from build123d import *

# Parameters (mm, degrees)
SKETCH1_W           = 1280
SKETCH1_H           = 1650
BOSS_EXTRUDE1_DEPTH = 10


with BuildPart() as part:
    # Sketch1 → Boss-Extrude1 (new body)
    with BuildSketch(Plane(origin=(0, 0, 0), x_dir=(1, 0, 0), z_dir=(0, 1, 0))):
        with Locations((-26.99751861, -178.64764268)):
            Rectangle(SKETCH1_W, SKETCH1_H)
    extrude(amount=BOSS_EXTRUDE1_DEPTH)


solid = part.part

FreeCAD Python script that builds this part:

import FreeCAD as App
import Part
import Sketcher
Q = App.Units.Quantity


def add_polygon(sketch, points):
    """Adds a closed chain of lines whose ends are joined by coincident constraints."""
    first, n = sketch.GeometryCount, len(points)
    for a, b in zip(points, points[1:] + points[:1]):
        sketch.addGeometry(Part.LineSegment(App.Vector(*a, 0), App.Vector(*b, 0)), False)
    for i in range(n):
        sketch.addConstraint(Sketcher.Constraint("Coincident", first + i, 2, first + (i + 1) % n, 1))

doc = App.newDocument("Part")
body = doc.addObject("PartDesign::Body", "Body")

# Sketch on XZ plane
sketch1 = body.newObject("Sketcher::SketchObject", "Sketch")
sketch1.AttachmentSupport = (doc.getObject("XZ_Plane"), [""])
sketch1.MapMode = "FlatFace"
add_polygon(sketch1, [(-667, -646), (-667, 1004), (613, 1004), (613, -646)])  # lines 0-3
sketch1.addConstraint([
    Sketcher.Constraint("Vertical", 0),
    Sketcher.Constraint("Horizontal", 1),
    Sketcher.Constraint("Vertical", 2),
    Sketcher.Constraint("Horizontal", 3),
    Sketcher.Constraint("DistanceX", 1, 1, 1, 2, Q("1280 mm")),
    Sketcher.Constraint("DistanceY", 0, 1, 0, 2, Q("1650 mm")),
    Sketcher.Constraint("DistanceX", 0, 2, -1, 1, Q("666.997519 mm")),
    Sketcher.Constraint("DistanceY", -1, 1, 0, 2, Q("1003.647643 mm")),
])
pad1 = body.newObject("PartDesign::Pad", "Pad")
pad1.Profile = sketch1
pad1.Length = 10
pad1.Reversed = True

doc.recompute()
